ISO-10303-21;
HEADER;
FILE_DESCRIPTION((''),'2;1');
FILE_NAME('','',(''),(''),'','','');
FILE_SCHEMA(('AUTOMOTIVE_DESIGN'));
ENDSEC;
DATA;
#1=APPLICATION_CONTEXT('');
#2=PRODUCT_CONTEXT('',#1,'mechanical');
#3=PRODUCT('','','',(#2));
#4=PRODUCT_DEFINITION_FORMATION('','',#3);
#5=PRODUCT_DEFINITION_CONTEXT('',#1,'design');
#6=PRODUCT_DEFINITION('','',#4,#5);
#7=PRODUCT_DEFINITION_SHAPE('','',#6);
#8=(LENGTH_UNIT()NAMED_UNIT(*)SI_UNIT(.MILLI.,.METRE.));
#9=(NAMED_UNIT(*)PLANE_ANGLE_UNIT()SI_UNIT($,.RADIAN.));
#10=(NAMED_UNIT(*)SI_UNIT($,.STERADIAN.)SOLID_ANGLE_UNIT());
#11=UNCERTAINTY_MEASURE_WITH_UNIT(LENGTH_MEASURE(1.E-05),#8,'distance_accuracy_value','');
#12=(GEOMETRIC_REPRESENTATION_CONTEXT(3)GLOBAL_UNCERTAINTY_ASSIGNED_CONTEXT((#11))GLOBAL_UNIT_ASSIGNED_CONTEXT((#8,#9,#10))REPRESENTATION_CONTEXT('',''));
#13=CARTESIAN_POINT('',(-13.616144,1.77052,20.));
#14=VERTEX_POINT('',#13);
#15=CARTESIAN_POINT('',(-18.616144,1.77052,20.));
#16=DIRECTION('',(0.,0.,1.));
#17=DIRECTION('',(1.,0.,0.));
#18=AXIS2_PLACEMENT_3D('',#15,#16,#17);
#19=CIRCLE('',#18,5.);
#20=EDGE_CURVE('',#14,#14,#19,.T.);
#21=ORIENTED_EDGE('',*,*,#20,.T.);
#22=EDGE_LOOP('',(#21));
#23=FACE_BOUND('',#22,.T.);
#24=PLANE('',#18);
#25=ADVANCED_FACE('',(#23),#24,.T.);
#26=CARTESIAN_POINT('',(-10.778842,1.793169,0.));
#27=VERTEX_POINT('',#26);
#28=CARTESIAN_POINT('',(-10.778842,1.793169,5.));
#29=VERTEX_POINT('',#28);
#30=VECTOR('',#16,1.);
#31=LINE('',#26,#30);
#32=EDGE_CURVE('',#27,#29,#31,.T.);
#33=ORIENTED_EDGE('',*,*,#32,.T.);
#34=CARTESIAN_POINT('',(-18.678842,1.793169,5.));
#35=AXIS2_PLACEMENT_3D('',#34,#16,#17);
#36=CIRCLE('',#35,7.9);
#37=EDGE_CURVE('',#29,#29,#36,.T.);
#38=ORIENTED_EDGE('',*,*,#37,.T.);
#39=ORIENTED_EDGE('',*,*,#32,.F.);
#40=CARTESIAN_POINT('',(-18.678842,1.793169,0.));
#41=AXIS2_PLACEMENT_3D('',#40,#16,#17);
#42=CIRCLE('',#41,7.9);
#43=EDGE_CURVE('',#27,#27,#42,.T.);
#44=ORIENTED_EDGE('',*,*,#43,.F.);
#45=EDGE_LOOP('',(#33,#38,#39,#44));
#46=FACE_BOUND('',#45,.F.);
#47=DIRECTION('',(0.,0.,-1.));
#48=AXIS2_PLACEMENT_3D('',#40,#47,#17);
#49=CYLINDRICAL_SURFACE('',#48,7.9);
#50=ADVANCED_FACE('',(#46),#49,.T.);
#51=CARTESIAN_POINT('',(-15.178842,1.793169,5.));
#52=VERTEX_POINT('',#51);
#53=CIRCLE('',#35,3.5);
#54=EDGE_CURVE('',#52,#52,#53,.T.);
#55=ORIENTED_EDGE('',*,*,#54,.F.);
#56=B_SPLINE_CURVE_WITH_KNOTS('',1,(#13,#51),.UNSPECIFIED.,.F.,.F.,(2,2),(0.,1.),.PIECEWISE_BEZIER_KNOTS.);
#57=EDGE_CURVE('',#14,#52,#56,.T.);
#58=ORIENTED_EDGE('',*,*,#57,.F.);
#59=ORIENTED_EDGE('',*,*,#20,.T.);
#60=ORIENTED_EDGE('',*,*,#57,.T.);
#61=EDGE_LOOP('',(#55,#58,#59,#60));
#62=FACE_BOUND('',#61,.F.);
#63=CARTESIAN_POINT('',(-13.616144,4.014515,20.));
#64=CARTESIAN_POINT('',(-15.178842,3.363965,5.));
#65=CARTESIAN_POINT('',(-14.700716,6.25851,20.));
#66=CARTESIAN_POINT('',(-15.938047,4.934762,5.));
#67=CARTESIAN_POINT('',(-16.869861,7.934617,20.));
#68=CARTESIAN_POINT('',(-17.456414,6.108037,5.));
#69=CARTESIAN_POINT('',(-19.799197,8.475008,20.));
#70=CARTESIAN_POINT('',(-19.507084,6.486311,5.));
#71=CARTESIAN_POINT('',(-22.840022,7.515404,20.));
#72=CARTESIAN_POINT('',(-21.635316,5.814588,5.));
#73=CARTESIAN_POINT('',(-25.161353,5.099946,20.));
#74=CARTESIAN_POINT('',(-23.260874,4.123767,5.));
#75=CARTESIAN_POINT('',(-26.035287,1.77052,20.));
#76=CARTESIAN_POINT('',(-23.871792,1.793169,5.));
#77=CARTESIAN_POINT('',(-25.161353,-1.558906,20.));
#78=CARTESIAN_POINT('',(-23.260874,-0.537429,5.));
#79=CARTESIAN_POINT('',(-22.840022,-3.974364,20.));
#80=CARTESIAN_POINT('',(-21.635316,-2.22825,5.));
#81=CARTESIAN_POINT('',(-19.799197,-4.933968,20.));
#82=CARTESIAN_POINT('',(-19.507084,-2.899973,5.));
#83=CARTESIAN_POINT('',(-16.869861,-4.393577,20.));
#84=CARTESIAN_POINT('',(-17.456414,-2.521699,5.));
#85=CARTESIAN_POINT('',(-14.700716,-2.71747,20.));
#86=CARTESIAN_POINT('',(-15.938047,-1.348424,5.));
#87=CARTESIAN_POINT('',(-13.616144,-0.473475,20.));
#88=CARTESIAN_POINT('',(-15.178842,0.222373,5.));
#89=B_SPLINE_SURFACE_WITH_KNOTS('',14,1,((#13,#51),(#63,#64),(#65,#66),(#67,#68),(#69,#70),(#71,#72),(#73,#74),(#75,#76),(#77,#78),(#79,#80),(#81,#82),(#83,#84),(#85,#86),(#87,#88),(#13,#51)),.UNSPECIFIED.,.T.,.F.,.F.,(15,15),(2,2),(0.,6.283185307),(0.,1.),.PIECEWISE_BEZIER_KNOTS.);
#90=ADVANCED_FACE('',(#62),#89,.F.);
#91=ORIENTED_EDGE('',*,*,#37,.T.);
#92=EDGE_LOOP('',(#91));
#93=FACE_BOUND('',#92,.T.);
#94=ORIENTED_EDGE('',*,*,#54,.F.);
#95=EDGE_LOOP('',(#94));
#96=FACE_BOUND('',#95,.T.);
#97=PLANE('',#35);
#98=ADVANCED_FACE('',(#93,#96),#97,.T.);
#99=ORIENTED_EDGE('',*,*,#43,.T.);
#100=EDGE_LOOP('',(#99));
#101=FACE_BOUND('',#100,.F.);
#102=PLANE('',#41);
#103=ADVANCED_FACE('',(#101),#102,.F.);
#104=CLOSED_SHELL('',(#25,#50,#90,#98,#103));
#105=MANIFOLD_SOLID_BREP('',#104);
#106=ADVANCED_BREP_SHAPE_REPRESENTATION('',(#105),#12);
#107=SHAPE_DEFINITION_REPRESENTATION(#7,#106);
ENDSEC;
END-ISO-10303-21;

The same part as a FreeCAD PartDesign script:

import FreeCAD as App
import Part
import Sketcher

V = App.Vector

doc = App.newDocument("Part")
params = doc.addObject("Spreadsheet::Sheet", "Params")
for row, (alias, value) in enumerate([
    ("sketch1_diameter", "15.8 mm"),
    ("pad1_length", "5 mm"),
    ("sketch2_diameter", "10 mm"),
    ("sketch3_diameter", "7 mm"),
], start=1):
    params.set(f"A{row}", alias)
    params.set(f"B{row}", "=" + value)
    params.setAlias(f"B{row}", alias)

body = doc.addObject("PartDesign::Body", "Body")

# Sketch on XY plane
sketch1 = doc.addObject("Sketcher::SketchObject", "Sketch")
body.addObject(sketch1)
sketch1.AttachmentSupport = (doc.XY_Plane, [""])
sketch1.MapMode = "FlatFace"
sketch1.addGeometry(Part.Circle(V(-18.678842, 1.793169, 0), V(0, 0, 1), 7.9), False)
sketch1.addConstraint(Sketcher.Constraint("Diameter", 0, 15.8))
sketch1.addConstraint(Sketcher.Constraint("DistanceX", 0, 3, -1, 1, 18.678842))
sketch1.addConstraint(Sketcher.Constraint("DistanceY", -1, 1, 0, 3, 1.793169))
sketch1.setExpression("Constraints[0]", "Params.sketch1_diameter")
pad1 = doc.addObject("PartDesign::Pad", "Pad")
body.addObject(pad1)
pad1.Profile = sketch1
pad1.setExpression("Length", "Params.pad1_length")

# Sketch on XY plane
sketch2 = doc.addObject("Sketcher::SketchObject", "Sketch001")
body.addObject(sketch2)
sketch2.AttachmentSupport = (doc.XY_Plane, [""])
sketch2.MapMode = "FlatFace"
sketch2.AttachmentOffset = App.Placement(V(0, 0, 20), App.Rotation())
sketch2.addGeometry(Part.Circle(V(-18.616144, 1.77052, 0), V(0, 0, 1), 5), False)
sketch2.addConstraint(Sketcher.Constraint("Diameter", 0, 10.0))
sketch2.addConstraint(Sketcher.Constraint("DistanceY", -1, 1, 0, 3, 1.77052))
sketch2.addConstraint(Sketcher.Constraint("DistanceX", 0, 3, -1, 1, 18.616144))
sketch2.setExpression("Constraints[0]", "Params.sketch2_diameter")

# Sketch on XY plane
sketch3 = doc.addObject("Sketcher::SketchObject", "Sketch002")
body.addObject(sketch3)
sketch3.AttachmentSupport = (doc.XY_Plane, [""])
sketch3.MapMode = "FlatFace"
sketch3.AttachmentOffset = App.Placement(V(0, 0, 5), App.Rotation())
sketch3.addGeometry(Part.Circle(V(-18.678842, 1.793169, 0), V(0, 0, 1), 3.5), False)
sketch3.addConstraint(Sketcher.Constraint("Diameter", 0, 7.0))
sketch3.addConstraint(Sketcher.Constraint("DistanceX", 0, 3, -1, 1, 18.678842))
sketch3.addConstraint(Sketcher.Constraint("DistanceY", -1, 1, 0, 3, 1.793169))
sketch3.setExpression("Constraints[0]", "Params.sketch3_diameter")

additiveloft = doc.addObject("PartDesign::AdditiveLoft", "AdditiveLoft")
body.addObject(additiveloft)
additiveloft.Profile = sketch2
additiveloft.Sections = [sketch3]

doc.recompute()
